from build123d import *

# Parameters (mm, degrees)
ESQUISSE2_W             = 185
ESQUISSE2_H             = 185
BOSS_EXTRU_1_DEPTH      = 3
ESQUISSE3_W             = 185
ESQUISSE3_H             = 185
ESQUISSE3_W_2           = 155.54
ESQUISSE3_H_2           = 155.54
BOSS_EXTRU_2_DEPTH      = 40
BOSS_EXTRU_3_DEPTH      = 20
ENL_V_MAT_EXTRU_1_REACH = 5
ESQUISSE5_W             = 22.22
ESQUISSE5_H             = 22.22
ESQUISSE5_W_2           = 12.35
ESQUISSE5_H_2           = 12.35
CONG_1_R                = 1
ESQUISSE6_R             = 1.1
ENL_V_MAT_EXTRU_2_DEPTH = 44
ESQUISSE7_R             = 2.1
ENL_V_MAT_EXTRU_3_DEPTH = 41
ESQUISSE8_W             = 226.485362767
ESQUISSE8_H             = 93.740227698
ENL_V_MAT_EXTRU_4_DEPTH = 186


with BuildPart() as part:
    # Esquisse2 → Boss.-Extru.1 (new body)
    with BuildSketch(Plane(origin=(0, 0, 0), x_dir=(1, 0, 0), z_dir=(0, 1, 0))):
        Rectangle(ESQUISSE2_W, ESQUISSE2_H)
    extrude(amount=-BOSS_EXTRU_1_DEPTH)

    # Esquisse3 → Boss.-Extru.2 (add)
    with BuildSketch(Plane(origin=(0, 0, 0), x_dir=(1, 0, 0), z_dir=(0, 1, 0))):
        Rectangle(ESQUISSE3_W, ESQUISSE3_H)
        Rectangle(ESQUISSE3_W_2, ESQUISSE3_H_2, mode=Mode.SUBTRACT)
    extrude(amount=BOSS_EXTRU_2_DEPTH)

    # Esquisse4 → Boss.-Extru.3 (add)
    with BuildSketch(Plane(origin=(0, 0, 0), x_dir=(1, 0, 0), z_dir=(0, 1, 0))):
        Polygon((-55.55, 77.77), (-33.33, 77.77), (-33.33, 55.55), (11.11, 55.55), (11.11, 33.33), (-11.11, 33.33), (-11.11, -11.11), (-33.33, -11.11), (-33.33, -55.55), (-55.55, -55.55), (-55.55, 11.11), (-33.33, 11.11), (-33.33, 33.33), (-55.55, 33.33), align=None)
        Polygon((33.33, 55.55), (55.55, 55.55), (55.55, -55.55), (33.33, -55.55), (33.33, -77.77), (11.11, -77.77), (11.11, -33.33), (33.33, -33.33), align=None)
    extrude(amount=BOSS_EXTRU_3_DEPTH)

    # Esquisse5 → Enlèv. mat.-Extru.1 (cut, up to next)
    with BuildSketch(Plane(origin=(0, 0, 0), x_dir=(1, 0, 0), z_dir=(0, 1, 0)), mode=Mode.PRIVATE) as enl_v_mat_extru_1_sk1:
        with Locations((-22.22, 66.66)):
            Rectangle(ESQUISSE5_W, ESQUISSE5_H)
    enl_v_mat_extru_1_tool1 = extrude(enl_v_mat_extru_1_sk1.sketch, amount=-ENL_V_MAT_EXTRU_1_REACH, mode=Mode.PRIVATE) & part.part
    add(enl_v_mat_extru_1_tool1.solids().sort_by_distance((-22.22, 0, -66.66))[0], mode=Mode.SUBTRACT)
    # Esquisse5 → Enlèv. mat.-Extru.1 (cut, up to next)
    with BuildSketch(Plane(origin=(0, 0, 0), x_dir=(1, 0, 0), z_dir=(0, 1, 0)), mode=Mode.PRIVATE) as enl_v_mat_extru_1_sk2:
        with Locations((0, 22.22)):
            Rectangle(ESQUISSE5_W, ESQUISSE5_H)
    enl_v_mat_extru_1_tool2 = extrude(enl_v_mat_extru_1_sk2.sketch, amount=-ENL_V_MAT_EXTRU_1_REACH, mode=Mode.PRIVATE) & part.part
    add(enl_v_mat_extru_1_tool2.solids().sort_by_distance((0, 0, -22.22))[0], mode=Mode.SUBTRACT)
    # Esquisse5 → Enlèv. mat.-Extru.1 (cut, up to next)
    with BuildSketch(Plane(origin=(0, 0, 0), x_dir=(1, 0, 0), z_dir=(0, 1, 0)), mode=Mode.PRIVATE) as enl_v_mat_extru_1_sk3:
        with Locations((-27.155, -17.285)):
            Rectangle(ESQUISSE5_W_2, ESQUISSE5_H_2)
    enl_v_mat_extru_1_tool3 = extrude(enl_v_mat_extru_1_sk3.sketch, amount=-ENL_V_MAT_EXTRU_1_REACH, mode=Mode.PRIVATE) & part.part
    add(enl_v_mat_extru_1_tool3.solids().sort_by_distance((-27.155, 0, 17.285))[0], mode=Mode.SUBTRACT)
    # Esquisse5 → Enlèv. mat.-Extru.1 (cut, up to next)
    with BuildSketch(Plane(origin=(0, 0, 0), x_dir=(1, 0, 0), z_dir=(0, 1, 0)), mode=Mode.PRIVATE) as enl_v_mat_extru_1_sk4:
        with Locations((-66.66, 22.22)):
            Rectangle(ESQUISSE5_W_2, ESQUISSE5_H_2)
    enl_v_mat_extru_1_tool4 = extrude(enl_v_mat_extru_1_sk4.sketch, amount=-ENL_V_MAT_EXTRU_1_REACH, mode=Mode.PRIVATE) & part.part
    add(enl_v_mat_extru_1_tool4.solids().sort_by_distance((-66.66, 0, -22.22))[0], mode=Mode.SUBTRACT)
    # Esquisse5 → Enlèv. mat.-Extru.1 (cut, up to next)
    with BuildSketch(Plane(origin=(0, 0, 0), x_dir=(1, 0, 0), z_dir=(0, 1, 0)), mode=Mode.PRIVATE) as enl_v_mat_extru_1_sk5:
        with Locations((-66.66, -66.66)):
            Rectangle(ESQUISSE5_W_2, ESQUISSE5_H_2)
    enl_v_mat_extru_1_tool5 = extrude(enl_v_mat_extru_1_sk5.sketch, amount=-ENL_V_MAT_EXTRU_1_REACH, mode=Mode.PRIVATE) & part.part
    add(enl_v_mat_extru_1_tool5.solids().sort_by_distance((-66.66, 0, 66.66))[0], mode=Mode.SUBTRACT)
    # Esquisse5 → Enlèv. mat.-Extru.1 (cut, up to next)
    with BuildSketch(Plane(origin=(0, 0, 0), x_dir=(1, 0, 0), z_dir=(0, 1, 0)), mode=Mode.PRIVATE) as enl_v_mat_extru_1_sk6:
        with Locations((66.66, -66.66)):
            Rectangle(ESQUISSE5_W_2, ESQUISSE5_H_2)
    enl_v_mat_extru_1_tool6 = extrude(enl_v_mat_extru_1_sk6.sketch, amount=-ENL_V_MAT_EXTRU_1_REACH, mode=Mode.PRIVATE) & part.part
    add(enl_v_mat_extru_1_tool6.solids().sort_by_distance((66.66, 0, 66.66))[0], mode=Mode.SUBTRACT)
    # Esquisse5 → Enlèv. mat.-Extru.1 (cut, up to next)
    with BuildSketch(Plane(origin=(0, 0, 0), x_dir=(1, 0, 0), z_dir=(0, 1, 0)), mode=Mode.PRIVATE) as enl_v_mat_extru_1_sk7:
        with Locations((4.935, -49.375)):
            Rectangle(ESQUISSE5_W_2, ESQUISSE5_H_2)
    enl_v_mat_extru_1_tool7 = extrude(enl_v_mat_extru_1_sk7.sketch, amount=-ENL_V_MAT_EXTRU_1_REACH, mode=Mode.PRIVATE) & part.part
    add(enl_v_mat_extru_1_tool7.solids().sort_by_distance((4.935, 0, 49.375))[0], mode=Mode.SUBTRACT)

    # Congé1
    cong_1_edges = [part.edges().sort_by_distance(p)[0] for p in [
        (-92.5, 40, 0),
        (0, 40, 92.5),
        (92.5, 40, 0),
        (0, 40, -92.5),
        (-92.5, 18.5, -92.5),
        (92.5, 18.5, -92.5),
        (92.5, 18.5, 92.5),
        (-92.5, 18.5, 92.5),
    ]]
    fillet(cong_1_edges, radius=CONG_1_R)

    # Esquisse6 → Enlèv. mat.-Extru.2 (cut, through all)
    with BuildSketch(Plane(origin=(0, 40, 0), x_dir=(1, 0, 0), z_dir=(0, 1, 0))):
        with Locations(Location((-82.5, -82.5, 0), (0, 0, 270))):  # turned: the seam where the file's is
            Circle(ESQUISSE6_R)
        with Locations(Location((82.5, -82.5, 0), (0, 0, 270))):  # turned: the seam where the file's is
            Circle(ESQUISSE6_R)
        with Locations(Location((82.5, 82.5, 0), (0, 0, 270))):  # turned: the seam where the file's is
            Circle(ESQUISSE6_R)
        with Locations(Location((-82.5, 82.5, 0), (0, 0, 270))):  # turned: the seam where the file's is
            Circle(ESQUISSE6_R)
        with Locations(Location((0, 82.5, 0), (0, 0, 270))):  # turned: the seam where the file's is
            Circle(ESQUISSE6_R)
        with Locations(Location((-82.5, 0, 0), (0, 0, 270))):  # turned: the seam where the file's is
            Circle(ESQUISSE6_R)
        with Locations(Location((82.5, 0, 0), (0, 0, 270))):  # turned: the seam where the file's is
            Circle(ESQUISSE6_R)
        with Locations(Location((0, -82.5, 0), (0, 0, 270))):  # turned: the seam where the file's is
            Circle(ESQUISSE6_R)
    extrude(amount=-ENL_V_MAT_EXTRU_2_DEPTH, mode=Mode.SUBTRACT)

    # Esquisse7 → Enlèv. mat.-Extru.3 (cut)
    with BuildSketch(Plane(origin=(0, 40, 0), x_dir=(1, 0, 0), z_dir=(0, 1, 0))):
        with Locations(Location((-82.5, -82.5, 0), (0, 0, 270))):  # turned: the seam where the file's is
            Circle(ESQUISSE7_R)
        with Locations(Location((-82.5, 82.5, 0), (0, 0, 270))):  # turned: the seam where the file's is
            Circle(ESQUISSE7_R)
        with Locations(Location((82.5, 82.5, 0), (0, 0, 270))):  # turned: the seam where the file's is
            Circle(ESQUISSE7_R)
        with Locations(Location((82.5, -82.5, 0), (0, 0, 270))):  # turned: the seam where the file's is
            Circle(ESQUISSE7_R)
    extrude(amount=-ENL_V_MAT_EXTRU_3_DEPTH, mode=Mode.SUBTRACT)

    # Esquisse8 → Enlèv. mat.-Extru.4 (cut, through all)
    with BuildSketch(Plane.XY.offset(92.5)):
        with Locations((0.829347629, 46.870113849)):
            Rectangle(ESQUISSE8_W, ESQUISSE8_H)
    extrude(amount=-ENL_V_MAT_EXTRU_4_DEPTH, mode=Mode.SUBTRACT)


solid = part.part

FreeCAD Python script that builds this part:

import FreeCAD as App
import Part
import Sketcher


def edges_at(feature, points):
    """Names of the edges that pass closest to the given points."""
    edges = feature.Shape.Edges
    near = lambda p: min(range(len(edges)), key=lambda i: edges[i].distToShape(Part.Vertex(*p))[0])
    return sorted({f"Edge{near(p) + 1}" for p in points})


def add_polygon(sketch, points):
    """Adds a closed chain of lines whose ends are joined by coincident constraints."""
    first, n = sketch.GeometryCount, len(points)
    for a, b in zip(points, points[1:] + points[:1]):
        sketch.addGeometry(Part.LineSegment(App.Vector(*a, 0), App.Vector(*b, 0)), False)
    for i in range(n):
        sketch.addConstraint(Sketcher.Constraint("Coincident", first + i, 2, first + (i + 1) % n, 1))

doc = App.newDocument("Part")
params = doc.addObject("Spreadsheet::Sheet", "Params")
for row, (alias, value) in enumerate([
    ("sketch1_width", "185 mm"),
    ("pad1_length", "3 mm"),
    ("sketch2_width", "185 mm"),
    ("sketch2_width2", "155.54 mm"),
    ("pad2_length", "40 mm"),
    ("sketch3_height", "111.1 mm"),
    ("pad3_length", "20 mm"),
    ("sketch4_width", "22.22 mm"),
    ("sketch5_width", "22.22 mm"),
    ("sketch6_width", "12.35 mm"),
    ("sketch7_width", "12.35 mm"),
    ("sketch8_width", "12.35 mm"),
    ("sketch9_width", "12.35 mm"),
    ("sketch10_width", "12.35 mm"),
    ("fillet_radius", "1 mm"),
    ("sketch11_diameter", "2.2 mm"),
    ("sketch12_diameter", "4.2 mm"),
    ("pocket9_length", "41 mm"),
], start=1):
    params.set(f"A{row}", alias)
    params.set(f"B{row}", "=" + value)
    params.setAlias(f"B{row}", alias)

body = doc.addObject("PartDesign::Body", "Body")

# Sketch on XZ plane
sketch1 = doc.addObject("Sketcher::SketchObject", "Sketch")
body.addObject(sketch1)
sketch1.AttachmentSupport = (doc.XZ_Plane, [""])
sketch1.MapMode = "FlatFace"
add_polygon(sketch1, [(-92.5, -92.5), (-92.5, 92.5), (92.5, 92.5), (92.5, -92.5)])  # lines 0-3
sketch1.addConstraint(Sketcher.Constraint("Vertical", 0))
sketch1.addConstraint(Sketcher.Constraint("Horizontal", 1))
sketch1.addConstraint(Sketcher.Constraint("Vertical", 2))
sketch1.addConstraint(Sketcher.Constraint("Horizontal", 3))
sketch1.addConstraint(Sketcher.Constraint("Symmetric", 0, 2, 2, 2, -1, 1))
sketch1.addConstraint(Sketcher.Constraint("Equal", 3, 0))
sketch1.addConstraint(Sketcher.Constraint("DistanceX", 1, 1, 1, 2, 185.0))
sketch1.setExpression("Constraints[10]", "Params.sketch1_width")
pad1 = doc.addObject("PartDesign::Pad", "Pad")
body.addObject(pad1)
pad1.Profile = sketch1
pad1.setExpression("Length", "Params.pad1_length")

# Sketch on XZ plane
sketch2 = doc.addObject("Sketcher::SketchObject", "Sketch001")
body.addObject(sketch2)
sketch2.AttachmentSupport = (doc.XZ_Plane, [""])
sketch2.MapMode = "FlatFace"
add_polygon(sketch2, [(-92.5, -92.5), (-92.5, 92.5), (92.5, 92.5), (92.5, -92.5)])  # lines 0-3
add_polygon(sketch2, [(77.77, 77.77), (-77.77, 77.77), (-77.77, -77.77), (77.77, -77.77)])  # lines 4-7
sketch2.addConstraint(Sketcher.Constraint("Vertical", 0))
sketch2.addConstraint(Sketcher.Constraint("Horizontal", 1))
sketch2.addConstraint(Sketcher.Constraint("Vertical", 2))
sketch2.addConstraint(Sketcher.Constraint("Horizontal", 3))
sketch2.addConstraint(Sketcher.Constraint("Horizontal", 4))
sketch2.addConstraint(Sketcher.Constraint("Vertical", 5))
sketch2.addConstraint(Sketcher.Constraint("Horizontal", 6))
sketch2.addConstraint(Sketcher.Constraint("Vertical", 7))
sketch2.addConstraint(Sketcher.Constraint("Symmetric", 0, 2, 2, 2, -1, 1))
sketch2.addConstraint(Sketcher.Constraint("Symmetric", 4, 2, 6, 2, -1, 1))
sketch2.addConstraint(Sketcher.Constraint("Equal", 3, 0))
sketch2.addConstraint(Sketcher.Constraint("Equal", 6, 5))
sketch2.addConstraint(Sketcher.Constraint("DistanceX", 1, 1, 1, 2, 185.0))
sketch2.addConstraint(Sketcher.Constraint("DistanceX", 4, 2, 4, 1, 155.54))
sketch2.setExpression("Constraints[20]", "Params.sketch2_width")
sketch2.setExpression("Constraints[21]", "Params.sketch2_width2")
pad2 = doc.addObject("PartDesign::Pad", "Pad001")
body.addObject(pad2)
pad2.Profile = sketch2
pad2.setExpression("Length", "Params.pad2_length")
pad2.Reversed = True

# Sketch on XZ plane
sketch3 = doc.addObject("Sketcher::SketchObject", "Sketch002")
body.addObject(sketch3)
sketch3.AttachmentSupport = (doc.XZ_Plane, [""])
sketch3.MapMode = "FlatFace"
add_polygon(sketch3, [(-33.33, -77.77), (-55.55, -77.77), (-55.55, -33.33), (-33.33, -33.33), (-33.33, -11.11), (-55.55, -11.11), (-55.55, 55.55), (-33.33, 55.55), (-33.33, 11.11), (-11.11, 11.11), (-11.11, -33.33), (11.11, -33.33), (11.11, -55.55), (-33.33, -55.55)])  # lines 0-13
add_polygon(sketch3, [(55.55, -55.55), (33.33, -55.55), (33.33, 33.33), (11.11, 33.33), (11.11, 77.77), (33.33, 77.77), (33.33, 55.55), (55.55, 55.55)])  # lines 14-21
sketch3.addConstraint(Sketcher.Constraint("Horizontal", 0))
sketch3.addConstraint(Sketcher.Constraint("Vertical", 1))
sketch3.addConstraint(Sketcher.Constraint("Horizontal", 2))
sketch3.addConstraint(Sketcher.Constraint("Vertical", 3))
sketch3.addConstraint(Sketcher.Constraint("Horizontal", 4))
sketch3.addConstraint(Sketcher.Constraint("Vertical", 5))
sketch3.addConstraint(Sketcher.Constraint("Horizontal", 6))
sketch3.addConstraint(Sketcher.Constraint("Vertical", 7))
sketch3.addConstraint(Sketcher.Constraint("Horizontal", 8))
sketch3.addConstraint(Sketcher.Constraint("Vertical", 9))
sketch3.addConstraint(Sketcher.Constraint("Horizontal", 10))
sketch3.addConstraint(Sketcher.Constraint("Vertical", 11))
sketch3.addConstraint(Sketcher.Constraint("Horizontal", 12))
sketch3.addConstraint(Sketcher.Constraint("Vertical", 13))
sketch3.addConstraint(Sketcher.Constraint("Horizontal", 14))
sketch3.addConstraint(Sketcher.Constraint("Vertical", 15))
sketch3.addConstraint(Sketcher.Constraint("Horizontal", 16))
sketch3.addConstraint(Sketcher.Constraint("Vertical", 17))
sketch3.addConstraint(Sketcher.Constraint("Horizontal", 18))
sketch3.addConstraint(Sketcher.Constraint("Vertical", 19))
sketch3.addConstraint(Sketcher.Constraint("Horizontal", 20))
sketch3.addConstraint(Sketcher.Constraint("Vertical", 21))
sketch3.addConstraint(Sketcher.Constraint("Symmetric", 6, 2, 14, 2, -1, 1))
sketch3.addConstraint(Sketcher.Constraint("Symmetric", 2, 2, 15, 2, -1, 1))
sketch3.addConstraint(Sketcher.Constraint("Symmetric", 9, 2, 16, 2, -1, 1))
sketch3.addConstraint(Sketcher.Constraint("Symmetric", 13, 2, 18, 2, -1, 1))
sketch3.addConstraint(Sketcher.Constraint("Symmetric", 12, 2, 14, 2, -2))
sketch3.addConstraint(Sketcher.Constraint("Symmetric", 5, 2, 20, 2, -2))
sketch3.addConstraint(Sketcher.Constraint("Vertical", 1, 2, 4, 2))
sketch3.addConstraint(Sketcher.Constraint("Vertical", 11, 2, 16, 2))
sketch3.addConstraint(Sketcher.Constraint("Equal", 6, 8))
sketch3.addConstraint(Sketcher.Constraint("Equal", 8, 10))
sketch3.addConstraint(Sketcher.Constraint("Equal", 12, 1))
sketch3.addConstraint(Sketcher.Constraint("Equal", 20, 3))
sketch3.addConstraint(Sketcher.Constraint("Equal", 1, 7))
sketch3.addConstraint(Sketcher.Constraint("Equal", 7, 9))
sketch3.addConstraint(Sketcher.Constraint("Equal", 3, 11))
sketch3.addConstraint(Sketcher.Constraint("DistanceY", 21, 2, 21, 1, 111.1))
sketch3.setExpression("Constraints[59]", "Params.sketch3_height")
pad3 = doc.addObject("PartDesign::Pad", "Pad002")
body.addObject(pad3)
pad3.Profile = sketch3
pad3.setExpression("Length", "Params.pad3_length")
pad3.Reversed = True

# Sketch on XZ plane
sketch4 = doc.addObject("Sketcher::SketchObject", "Sketch003")
body.addObject(sketch4)
sketch4.AttachmentSupport = (doc.XZ_Plane, [""])
sketch4.MapMode = "FlatFace"
add_polygon(sketch4, [(-33.33, -77.77), (-33.33, -55.55), (-11.11, -55.55), (-11.11, -77.77)])  # lines 0-3
sketch4.addConstraint(Sketcher.Constraint("Vertical", 0))
sketch4.addConstraint(Sketcher.Constraint("Horizontal", 1))
sketch4.addConstraint(Sketcher.Constraint("Vertical", 2))
sketch4.addConstraint(Sketcher.Constraint("Horizontal", 3))
sketch4.addConstraint(Sketcher.Constraint("Equal", 3, 0))
sketch4.addConstraint(Sketcher.Constraint("DistanceX", 1, 1, 1, 2, 22.22))
sketch4.addConstraint(Sketcher.Constraint("DistanceX", 0, 2, -1, 1, 33.33))
sketch4.addConstraint(Sketcher.Constraint("DistanceY", 0, 2, -1, 1, 55.55))
sketch4.setExpression("Constraints[9]", "Params.sketch4_width")
pocket1 = doc.addObject("PartDesign::Pocket", "Pocket")
body.addObject(pocket1)
pocket1.Profile = sketch4
pocket1.Type = "UpToFirst"
pocket1.Reversed = True

# Sketch on XZ plane
sketch5 = doc.addObject("Sketcher::SketchObject", "Sketch004")
body.addObject(sketch5)
sketch5.AttachmentSupport = (doc.XZ_Plane, [""])
sketch5.MapMode = "FlatFace"
add_polygon(sketch5, [(-11.11, -33.33), (-11.11, -11.11), (11.11, -11.11), (11.11, -33.33)])  # lines 0-3
sketch5.addConstraint(Sketcher.Constraint("Vertical", 0))
sketch5.addConstraint(Sketcher.Constraint("Horizontal", 1))
sketch5.addConstraint(Sketcher.Constraint("Vertical", 2))
sketch5.addConstraint(Sketcher.Constraint("Horizontal", 3))
sketch5.addConstraint(Sketcher.Constraint("Equal", 3, 0))
sketch5.addConstraint(Sketcher.Constraint("DistanceX", 1, 1, 1, 2, 22.22))
sketch5.addConstraint(Sketcher.Constraint("DistanceX", 0, 2, -1, 1, 11.11))
sketch5.addConstraint(Sketcher.Constraint("DistanceY", 0, 2, -1, 1, 11.11))
sketch5.setExpression("Constraints[9]", "Params.sketch5_width")
pocket2 = doc.addObject("PartDesign::Pocket", "Pocket001")
body.addObject(pocket2)
pocket2.Profile = sketch5
pocket2.Type = "UpToFirst"
pocket2.Reversed = True

# Sketch on XZ plane
sketch6 = doc.addObject("Sketcher::SketchObject", "Sketch005")
body.addObject(sketch6)
sketch6.AttachmentSupport = (doc.XZ_Plane, [""])
sketch6.MapMode = "FlatFace"
add_polygon(sketch6, [(-33.33, 11.11), (-33.33, 23.46), (-20.98, 23.46), (-20.98, 11.11)])  # lines 0-3
sketch6.addConstraint(Sketcher.Constraint("Vertical", 0))
sketch6.addConstraint(Sketcher.Constraint("Horizontal", 1))
sketch6.addConstraint(Sketcher.Constraint("Vertical", 2))
sketch6.addConstraint(Sketcher.Constraint("Horizontal", 3))
sketch6.addConstraint(Sketcher.Constraint("Equal", 3, 0))
sketch6.addConstraint(Sketcher.Constraint("DistanceX", 1, 1, 1, 2, 12.35))
sketch6.addConstraint(Sketcher.Constraint("DistanceX", 0, 2, -1, 1, 33.33))
sketch6.addConstraint(Sketcher.Constraint("DistanceY", -1, 1, 0, 2, 23.46))
sketch6.setExpression("Constraints[9]", "Params.sketch6_width")
pocket3 = doc.addObject("PartDesign::Pocket", "Pocket002")
body.addObject(pocket3)
pocket3.Profile = sketch6
pocket3.Type = "UpToFirst"
pocket3.Reversed = True

# Sketch on XZ plane
sketch7 = doc.addObject("Sketcher::SketchObject", "Sketch006")
body.addObject(sketch7)
sketch7.AttachmentSupport = (doc.XZ_Plane, [""])
sketch7.MapMode = "FlatFace"
add_polygon(sketch7, [(-72.835, -28.395), (-72.835, -16.045), (-60.485, -16.045), (-60.485, -28.395)])  # lines 0-3
sketch7.addConstraint(Sketcher.Constraint("Vertical", 0))
sketch7.addConstraint(Sketcher.Constraint("Horizontal", 1))
sketch7.addConstraint(Sketcher.Constraint("Vertical", 2))
sketch7.addConstraint(Sketcher.Constraint("Horizontal", 3))
sketch7.addConstraint(Sketcher.Constraint("Equal", 3, 0))
sketch7.addConstraint(Sketcher.Constraint("DistanceX", 1, 1, 1, 2, 12.35))
sketch7.addConstraint(Sketcher.Constraint("DistanceX", 0, 2, -1, 1, 72.835))
sketch7.addConstraint(Sketcher.Constraint("DistanceY", 0, 2, -1, 1, 16.045))
sketch7.setExpression("Constraints[9]", "Params.sketch7_width")
pocket4 = doc.addObject("PartDesign::Pocket", "Pocket003")
body.addObject(pocket4)
pocket4.Profile = sketch7
pocket4.Type = "UpToFirst"
pocket4.Reversed = True

# Sketch on XZ plane
sketch8 = doc.addObject("Sketcher::SketchObject", "Sketch007")
body.addObject(sketch8)
sketch8.AttachmentSupport = (doc.XZ_Plane, [""])
sketch8.MapMode = "FlatFace"
add_polygon(sketch8, [(-72.835, 60.485), (-72.835, 72.835), (-60.485, 72.835), (-60.485, 60.485)])  # lines 0-3
sketch8.addConstraint(Sketcher.Constraint("Vertical", 0))
sketch8.addConstraint(Sketcher.Constraint("Horizontal", 1))
sketch8.addConstraint(Sketcher.Constraint("Vertical", 2))
sketch8.addConstraint(Sketcher.Constraint("Horizontal", 3))
sketch8.addConstraint(Sketcher.Constraint("Equal", 3, 0))
sketch8.addConstraint(Sketcher.Constraint("DistanceX", 1, 1, 1, 2, 12.35))
sketch8.addConstraint(Sketcher.Constraint("DistanceX", 0, 2, -1, 1, 72.835))
sketch8.addConstraint(Sketcher.Constraint("DistanceY", -1, 1, 0, 2, 72.835))
sketch8.setExpression("Constraints[9]", "Params.sketch8_width")
pocket5 = doc.addObject("PartDesign::Pocket", "Pocket004")
body.addObject(pocket5)
pocket5.Profile = sketch8
pocket5.Type = "UpToFirst"
pocket5.Reversed = True

# Sketch on XZ plane
sketch9 = doc.addObject("Sketcher::SketchObject", "Sketch008")
body.addObject(sketch9)
sketch9.AttachmentSupport = (doc.XZ_Plane, [""])
sketch9.MapMode = "FlatFace"
add_polygon(sketch9, [(60.485, 60.485), (60.485, 72.835), (72.835, 72.835), (72.835, 60.485)])  # lines 0-3
sketch9.addConstraint(Sketcher.Constraint("Vertical", 0))
sketch9.addConstraint(Sketcher.Constraint("Horizontal", 1))
sketch9.addConstraint(Sketcher.Constraint("Vertical", 2))
sketch9.addConstraint(Sketcher.Constraint("Horizontal", 3))
sketch9.addConstraint(Sketcher.Constraint("Equal", 3, 0))
sketch9.addConstraint(Sketcher.Constraint("DistanceX", 1, 1, 1, 2, 12.35))
sketch9.addConstraint(Sketcher.Constraint("DistanceX", -1, 1, 0, 2, 60.485))
sketch9.addConstraint(Sketcher.Constraint("DistanceY", -1, 1, 0, 2, 72.835))
sketch9.setExpression("Constraints[9]", "Params.sketch9_width")
pocket6 = doc.addObject("PartDesign::Pocket", "Pocket005")
body.addObject(pocket6)
pocket6.Profile = sketch9
pocket6.Type = "UpToFirst"
pocket6.Reversed = True

# Sketch on XZ plane
sketch10 = doc.addObject("Sketcher::SketchObject", "Sketch009")
body.addObject(sketch10)
sketch10.AttachmentSupport = (doc.XZ_Plane, [""])
sketch10.MapMode = "FlatFace"
add_polygon(sketch10, [(-1.24, 43.2), (-1.24, 55.55), (11.11, 55.55), (11.11, 43.2)])  # lines 0-3
sketch10.addConstraint(Sketcher.Constraint("Vertical", 0))
sketch10.addConstraint(Sketcher.Constraint("Horizontal", 1))
sketch10.addConstraint(Sketcher.Constraint("Vertical", 2))
sketch10.addConstraint(Sketcher.Constraint("Horizontal", 3))
sketch10.addConstraint(Sketcher.Constraint("Equal", 3, 0))
sketch10.addConstraint(Sketcher.Constraint("DistanceX", 1, 1, 1, 2, 12.35))
sketch10.addConstraint(Sketcher.Constraint("DistanceY", -1, 1, 2, 2, 43.2))
sketch10.addConstraint(Sketcher.Constraint("DistanceX", 0, 2, -1, 1, 1.24))
sketch10.setExpression("Constraints[9]", "Params.sketch10_width")
pocket7 = doc.addObject("PartDesign::Pocket", "Pocket006")
body.addObject(pocket7)
pocket7.Profile = sketch10
pocket7.Type = "UpToFirst"
pocket7.Reversed = True
doc.recompute()

fillet = doc.addObject("PartDesign::Fillet", "Fillet")
body.addObject(fillet)
fillet.Base = (pocket7, edges_at(pocket7, [
    (-92.5, 40, 0),
    (0, 40, 92.5),
    (92.5, 40, 0),
    (0, 40, -92.5),
    (-92.5, 18.5, -92.5),
    (92.5, 18.5, -92.5),
    (92.5, 18.5, 92.5),
    (-92.5, 18.5, 92.5),
]))
fillet.setExpression("Radius", "Params.fillet_radius")

# Sketch on XZ plane
sketch11 = doc.addObject("Sketcher::SketchObject", "Sketch010")
body.addObject(sketch11)
sketch11.AttachmentSupport = (doc.XZ_Plane, [""])
sketch11.MapMode = "FlatFace"
sketch11.AttachmentOffset = App.Placement(App.Vector(0, 0, -40), App.Rotation())
sketch11.addGeometry(Part.Circle(App.Vector(-82.5, 82.5, 0), App.Vector(0, 0, 1), 1.1), False)
sketch11.addGeometry(Part.Circle(App.Vector(82.5, 82.5, 0), App.Vector(0, 0, 1), 1.1), False)
sketch11.addGeometry(Part.Circle(App.Vector(82.5, -82.5, 0), App.Vector(0, 0, 1), 1.1), False)
sketch11.addGeometry(Part.Circle(App.Vector(-82.5, -82.5, 0), App.Vector(0, 0, 1), 1.1), False)
sketch11.addGeometry(Part.Circle(App.Vector(0, -82.5, 0), App.Vector(0, 0, 1), 1.1), False)
sketch11.addGeometry(Part.Circle(App.Vector(-82.5, 0, 0), App.Vector(0, 0, 1), 1.1), False)
sketch11.addGeometry(Part.Circle(App.Vector(82.5, 0, 0), App.Vector(0, 0, 1), 1.1), False)
sketch11.addGeometry(Part.Circle(App.Vector(0, 82.5, 0), App.Vector(0, 0, 1), 1.1), False)
sketch11.addConstraint(Sketcher.Constraint("Equal", 0, 1))
sketch11.addConstraint(Sketcher.Constraint("Equal", 1, 2))
sketch11.addConstraint(Sketcher.Constraint("Equal", 2, 3))
sketch11.addConstraint(Sketcher.Constraint("Equal", 3, 4))
sketch11.addConstraint(Sketcher.Constraint("Equal", 4, 5))
sketch11.addConstraint(Sketcher.Constraint("Equal", 5, 6))
sketch11.addConstraint(Sketcher.Constraint("Equal", 6, 7))
sketch11.addConstraint(Sketcher.Constraint("Symmetric", 0, 3, 2, 3, -1, 1))
sketch11.addConstraint(Sketcher.Constraint("Symmetric", 1, 3, 3, 3, -1, 1))
sketch11.addConstraint(Sketcher.Constraint("Symmetric", 5, 3, 6, 3, -1, 1))
sketch11.addConstraint(Sketcher.Constraint("Symmetric", 4, 3, 7, 3, -1, 1))
sketch11.addConstraint(Sketcher.Constraint("Symmetric", 0, 3, 1, 3, -2))
sketch11.addConstraint(Sketcher.Constraint("PointOnObject", 4, 3, -2))
sketch11.addConstraint(Sketcher.Constraint("PointOnObject", 5, 3, -1))
sketch11.addConstraint(Sketcher.Constraint("Horizontal", 3, 3, 4, 3))
sketch11.addConstraint(Sketcher.Constraint("Vertical", 3, 3, 5, 3))
sketch11.addConstraint(Sketcher.Constraint("Diameter", 0, 2.2))
sketch11.addConstraint(Sketcher.Constraint("DistanceX", 0, 3, 1, 3, 165.0))
sketch11.addConstraint(Sketcher.Constraint("DistanceY", 2, 3, 1, 3, 165.0))
sketch11.setExpression("Constraints[16]", "Params.sketch11_diameter")
pocket8 = doc.addObject("PartDesign::Pocket", "Pocket007")
body.addObject(pocket8)
pocket8.Profile = sketch11
pocket8.Type = "ThroughAll"
pocket8.Reversed = True

# Sketch on XZ plane
sketch12 = doc.addObject("Sketcher::SketchObject", "Sketch011")
body.addObject(sketch12)
sketch12.AttachmentSupport = (doc.XZ_Plane, [""])
sketch12.MapMode = "FlatFace"
sketch12.AttachmentOffset = App.Placement(App.Vector(0, 0, -40), App.Rotation())
sketch12.addGeometry(Part.Circle(App.Vector(-82.5, 82.5, 0), App.Vector(0, 0, 1), 2.1), False)
sketch12.addGeometry(Part.Circle(App.Vector(-82.5, -82.5, 0), App.Vector(0, 0, 1), 2.1), False)
sketch12.addGeometry(Part.Circle(App.Vector(82.5, -82.5, 0), App.Vector(0, 0, 1), 2.1), False)
sketch12.addGeometry(Part.Circle(App.Vector(82.5, 82.5, 0), App.Vector(0, 0, 1), 2.1), False)
sketch12.addConstraint(Sketcher.Constraint("Equal", 0, 1))
sketch12.addConstraint(Sketcher.Constraint("Equal", 1, 2))
sketch12.addConstraint(Sketcher.Constraint("Equal", 2, 3))
sketch12.addConstraint(Sketcher.Constraint("Symmetric", 0, 3, 2, 3, -1, 1))
sketch12.addConstraint(Sketcher.Constraint("Symmetric", 1, 3, 3, 3, -1, 1))
sketch12.addConstraint(Sketcher.Constraint("Symmetric", 1, 3, 2, 3, -2))
sketch12.addConstraint(Sketcher.Constraint("Diameter", 0, 4.2))
sketch12.addConstraint(Sketcher.Constraint("DistanceY", 1, 3, 0, 3, 165.0))
sketch12.addConstraint(Sketcher.Constraint("DistanceX", 1, 3, 2, 3, 165.0))
sketch12.setExpression("Constraints[6]", "Params.sketch12_diameter")
pocket9 = doc.addObject("PartDesign::Pocket", "Pocket008")
body.addObject(pocket9)
pocket9.Profile = sketch12
pocket9.setExpression("Length", "Params.pocket9_length")
pocket9.Reversed = True

# Sketch on XY plane
sketch13 = doc.addObject("Sketcher::SketchObject", "Sketch012")
body.addObject(sketch13)
sketch13.AttachmentSupport = (doc.XY_Plane, [""])
sketch13.MapMode = "FlatFace"
sketch13.AttachmentOffset = App.Placement(App.Vector(0, 0, 92.5), App.Rotation())
add_polygon(sketch13, [(-112.413334, 93.740228), (-112.413334, 0), (114.072029, 0), (114.072029, 93.740228)])  # lines 0-3
sketch13.addConstraint(Sketcher.Constraint("Vertical", 0))
sketch13.addConstraint(Sketcher.Constraint("Horizontal", 1))
sketch13.addConstraint(Sketcher.Constraint("Vertical", 2))
sketch13.addConstraint(Sketcher.Constraint("Horizontal", 3))
sketch13.addConstraint(Sketcher.Constraint("PointOnObject", 0, 2, -1))
sketch13.addConstraint(Sketcher.Constraint("DistanceX", 1, 1, 1, 2, 226.485363))
sketch13.addConstraint(Sketcher.Constraint("DistanceY", 0, 2, 0, 1, 93.740228))
sketch13.addConstraint(Sketcher.Constraint("DistanceX", -1, 1, 1, 2, 114.072029))
pocket10 = doc.addObject("PartDesign::Pocket", "Pocket009")
body.addObject(pocket10)
pocket10.Profile = sketch13
pocket10.Type = "ThroughAll"

doc.recompute()
